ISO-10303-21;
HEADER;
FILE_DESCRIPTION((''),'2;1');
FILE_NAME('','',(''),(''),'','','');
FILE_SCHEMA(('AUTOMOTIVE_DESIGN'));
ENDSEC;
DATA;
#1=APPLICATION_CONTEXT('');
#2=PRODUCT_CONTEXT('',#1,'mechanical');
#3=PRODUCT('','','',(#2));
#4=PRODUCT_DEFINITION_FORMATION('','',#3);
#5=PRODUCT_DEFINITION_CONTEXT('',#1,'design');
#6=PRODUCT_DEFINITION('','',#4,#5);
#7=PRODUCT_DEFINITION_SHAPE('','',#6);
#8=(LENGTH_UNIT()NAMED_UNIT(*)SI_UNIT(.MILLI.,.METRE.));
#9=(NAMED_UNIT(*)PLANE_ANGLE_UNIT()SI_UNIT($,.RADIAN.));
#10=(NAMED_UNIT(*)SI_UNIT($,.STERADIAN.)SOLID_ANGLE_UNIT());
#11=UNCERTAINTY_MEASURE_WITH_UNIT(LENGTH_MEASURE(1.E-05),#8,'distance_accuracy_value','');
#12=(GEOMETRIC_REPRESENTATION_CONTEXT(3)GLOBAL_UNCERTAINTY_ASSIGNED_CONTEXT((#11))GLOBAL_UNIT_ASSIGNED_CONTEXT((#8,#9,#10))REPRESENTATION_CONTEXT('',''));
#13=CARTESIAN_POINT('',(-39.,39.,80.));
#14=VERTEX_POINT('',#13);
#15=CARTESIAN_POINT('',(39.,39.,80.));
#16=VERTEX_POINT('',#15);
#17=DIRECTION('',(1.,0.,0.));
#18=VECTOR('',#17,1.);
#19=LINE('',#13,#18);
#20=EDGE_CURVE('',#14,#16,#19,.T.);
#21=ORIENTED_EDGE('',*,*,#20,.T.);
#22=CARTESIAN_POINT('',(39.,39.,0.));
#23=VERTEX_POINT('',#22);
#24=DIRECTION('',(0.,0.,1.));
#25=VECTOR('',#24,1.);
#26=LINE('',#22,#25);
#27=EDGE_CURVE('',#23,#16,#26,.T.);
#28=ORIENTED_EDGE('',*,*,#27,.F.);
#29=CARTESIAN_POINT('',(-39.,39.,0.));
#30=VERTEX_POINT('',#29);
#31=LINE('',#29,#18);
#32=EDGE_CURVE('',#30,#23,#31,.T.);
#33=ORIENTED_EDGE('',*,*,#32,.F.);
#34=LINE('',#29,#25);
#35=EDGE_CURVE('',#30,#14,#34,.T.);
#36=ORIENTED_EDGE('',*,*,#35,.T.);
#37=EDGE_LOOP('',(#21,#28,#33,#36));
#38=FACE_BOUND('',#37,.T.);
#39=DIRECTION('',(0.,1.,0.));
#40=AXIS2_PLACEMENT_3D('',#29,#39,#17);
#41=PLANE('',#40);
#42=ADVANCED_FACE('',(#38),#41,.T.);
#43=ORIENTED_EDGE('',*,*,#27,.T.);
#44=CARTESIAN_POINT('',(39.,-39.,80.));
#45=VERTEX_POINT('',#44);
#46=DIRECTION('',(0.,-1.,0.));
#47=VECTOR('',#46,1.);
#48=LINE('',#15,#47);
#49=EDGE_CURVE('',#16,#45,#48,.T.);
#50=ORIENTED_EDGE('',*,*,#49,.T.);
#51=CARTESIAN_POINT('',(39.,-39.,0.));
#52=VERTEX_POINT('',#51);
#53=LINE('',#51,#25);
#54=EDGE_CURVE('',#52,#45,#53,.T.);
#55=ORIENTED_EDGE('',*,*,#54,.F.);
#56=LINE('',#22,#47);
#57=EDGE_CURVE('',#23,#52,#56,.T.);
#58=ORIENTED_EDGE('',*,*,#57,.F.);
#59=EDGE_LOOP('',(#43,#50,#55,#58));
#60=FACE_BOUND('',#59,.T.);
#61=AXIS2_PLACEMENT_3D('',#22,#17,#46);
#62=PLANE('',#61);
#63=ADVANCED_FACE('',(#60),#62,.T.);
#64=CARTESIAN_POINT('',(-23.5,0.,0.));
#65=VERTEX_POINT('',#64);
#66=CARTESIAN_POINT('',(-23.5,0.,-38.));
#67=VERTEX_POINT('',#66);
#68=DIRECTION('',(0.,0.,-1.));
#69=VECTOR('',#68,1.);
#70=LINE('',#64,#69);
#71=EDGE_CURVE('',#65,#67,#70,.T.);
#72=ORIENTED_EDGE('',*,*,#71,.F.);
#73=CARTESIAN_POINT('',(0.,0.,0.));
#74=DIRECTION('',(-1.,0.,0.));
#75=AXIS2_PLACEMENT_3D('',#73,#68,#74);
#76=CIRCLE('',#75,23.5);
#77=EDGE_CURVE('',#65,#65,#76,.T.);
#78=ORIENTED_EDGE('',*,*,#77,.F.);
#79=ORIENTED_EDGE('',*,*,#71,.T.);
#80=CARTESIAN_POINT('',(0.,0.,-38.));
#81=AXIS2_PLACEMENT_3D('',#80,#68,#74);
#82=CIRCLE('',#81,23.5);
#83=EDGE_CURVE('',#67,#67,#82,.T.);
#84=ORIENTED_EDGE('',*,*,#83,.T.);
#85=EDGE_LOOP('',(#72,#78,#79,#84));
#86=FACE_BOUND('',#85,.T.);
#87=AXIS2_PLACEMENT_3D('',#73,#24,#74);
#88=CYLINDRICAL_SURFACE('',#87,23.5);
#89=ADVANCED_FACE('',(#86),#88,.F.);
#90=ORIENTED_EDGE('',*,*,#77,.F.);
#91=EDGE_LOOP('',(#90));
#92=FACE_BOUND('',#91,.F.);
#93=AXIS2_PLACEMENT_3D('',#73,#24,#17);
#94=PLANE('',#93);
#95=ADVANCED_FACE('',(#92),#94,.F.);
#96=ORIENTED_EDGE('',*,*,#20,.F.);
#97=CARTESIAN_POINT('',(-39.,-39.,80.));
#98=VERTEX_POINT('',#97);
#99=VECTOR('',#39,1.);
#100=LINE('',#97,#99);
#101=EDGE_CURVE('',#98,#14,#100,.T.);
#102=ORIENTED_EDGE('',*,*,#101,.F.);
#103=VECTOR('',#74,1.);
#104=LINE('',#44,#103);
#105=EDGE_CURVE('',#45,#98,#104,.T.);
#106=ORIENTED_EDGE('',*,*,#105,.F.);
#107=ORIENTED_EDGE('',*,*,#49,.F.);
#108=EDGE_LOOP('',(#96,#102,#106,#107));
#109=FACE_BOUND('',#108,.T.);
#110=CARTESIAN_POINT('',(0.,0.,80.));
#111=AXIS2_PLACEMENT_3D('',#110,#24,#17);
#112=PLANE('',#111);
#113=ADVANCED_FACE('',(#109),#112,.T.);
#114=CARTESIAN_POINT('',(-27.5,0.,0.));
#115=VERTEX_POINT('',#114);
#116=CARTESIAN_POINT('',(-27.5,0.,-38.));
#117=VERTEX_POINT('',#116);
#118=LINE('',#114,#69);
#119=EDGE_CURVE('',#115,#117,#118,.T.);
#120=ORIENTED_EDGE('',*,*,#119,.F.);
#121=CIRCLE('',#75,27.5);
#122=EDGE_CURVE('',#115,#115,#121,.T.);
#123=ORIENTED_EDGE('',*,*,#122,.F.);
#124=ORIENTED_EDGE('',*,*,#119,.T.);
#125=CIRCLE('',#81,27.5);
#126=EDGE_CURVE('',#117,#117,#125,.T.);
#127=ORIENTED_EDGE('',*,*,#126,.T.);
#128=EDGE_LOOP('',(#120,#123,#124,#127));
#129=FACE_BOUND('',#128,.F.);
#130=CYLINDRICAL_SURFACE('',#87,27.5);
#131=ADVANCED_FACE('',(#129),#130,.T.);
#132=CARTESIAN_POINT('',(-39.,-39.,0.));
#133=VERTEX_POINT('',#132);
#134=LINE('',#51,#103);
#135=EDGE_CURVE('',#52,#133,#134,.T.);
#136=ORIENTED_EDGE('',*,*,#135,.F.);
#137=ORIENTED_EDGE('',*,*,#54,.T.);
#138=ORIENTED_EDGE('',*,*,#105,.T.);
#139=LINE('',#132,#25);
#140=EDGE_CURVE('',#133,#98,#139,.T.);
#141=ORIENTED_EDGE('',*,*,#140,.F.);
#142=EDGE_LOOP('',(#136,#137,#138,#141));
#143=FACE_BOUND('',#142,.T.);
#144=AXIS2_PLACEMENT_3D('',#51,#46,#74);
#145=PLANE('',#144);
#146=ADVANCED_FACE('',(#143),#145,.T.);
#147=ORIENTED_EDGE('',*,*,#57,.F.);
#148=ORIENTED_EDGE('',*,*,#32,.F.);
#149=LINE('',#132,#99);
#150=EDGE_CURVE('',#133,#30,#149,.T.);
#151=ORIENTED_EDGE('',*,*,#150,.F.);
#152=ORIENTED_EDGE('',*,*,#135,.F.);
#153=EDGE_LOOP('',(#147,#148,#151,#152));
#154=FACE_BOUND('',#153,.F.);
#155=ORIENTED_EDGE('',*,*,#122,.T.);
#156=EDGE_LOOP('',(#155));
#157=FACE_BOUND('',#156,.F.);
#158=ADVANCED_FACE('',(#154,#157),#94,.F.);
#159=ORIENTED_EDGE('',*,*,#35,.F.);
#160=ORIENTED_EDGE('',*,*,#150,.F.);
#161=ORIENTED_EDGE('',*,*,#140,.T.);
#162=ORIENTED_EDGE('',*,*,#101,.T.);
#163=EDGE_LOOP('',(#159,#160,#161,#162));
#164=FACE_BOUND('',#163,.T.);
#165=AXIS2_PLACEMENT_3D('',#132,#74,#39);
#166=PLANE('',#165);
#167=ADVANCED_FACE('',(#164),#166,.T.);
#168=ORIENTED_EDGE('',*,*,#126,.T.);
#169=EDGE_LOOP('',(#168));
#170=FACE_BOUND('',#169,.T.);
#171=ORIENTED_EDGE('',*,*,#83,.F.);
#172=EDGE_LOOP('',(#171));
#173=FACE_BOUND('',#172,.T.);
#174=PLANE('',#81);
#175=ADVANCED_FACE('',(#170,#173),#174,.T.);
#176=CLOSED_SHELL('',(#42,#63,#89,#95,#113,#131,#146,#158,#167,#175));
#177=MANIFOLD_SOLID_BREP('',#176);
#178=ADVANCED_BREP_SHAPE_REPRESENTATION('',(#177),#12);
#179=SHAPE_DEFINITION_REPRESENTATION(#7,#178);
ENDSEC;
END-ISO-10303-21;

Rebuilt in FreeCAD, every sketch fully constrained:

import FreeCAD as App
import Part
import Sketcher

V = App.Vector

doc = App.newDocument("Part")
body = doc.addObject("PartDesign::Body", "Body")

sketch1 = doc.addObject("Sketcher::SketchObject", "Sketch")
body.addObject(sketch1)
sketch1.AttachmentSupport = (doc.XY_Plane, [""])
sketch1.MapMode = "FlatFace"
sketch1.addGeometry([
    Part.LineSegment(V(39, 39, 0), V(-39, 39, 0)),
    Part.LineSegment(V(-39, 39, 0), V(-39, -39, 0)),
    Part.LineSegment(V(-39, -39, 0), V(39, -39, 0)),
    Part.LineSegment(V(39, -39, 0), V(39, 39, 0)),
], False)
sketch1.addConstraint([
    Sketcher.Constraint("Coincident", 0, 2, 1, 1),
    Sketcher.Constraint("Coincident", 1, 2, 2, 1),
    Sketcher.Constraint("Coincident", 2, 2, 3, 1),
    Sketcher.Constraint("Coincident", 3, 2, 0, 1),
    Sketcher.Constraint("Horizontal", 0),
    Sketcher.Constraint("Vertical", 1),
    Sketcher.Constraint("Horizontal", 2),
    Sketcher.Constraint("Vertical", 3),
    Sketcher.Constraint("Symmetric", 0, 2, 2, 2, -1, 1),
    Sketcher.Constraint("Equal", 2, 1),
    Sketcher.Constraint("DistanceX", 0, 2, 0, 1, 78.0),
])
pad1 = doc.addObject("PartDesign::Pad", "Pad")
body.addObject(pad1)
pad1.Profile = sketch1
pad1.Length = 80

sketch2 = doc.addObject("Sketcher::SketchObject", "Sketch001")
body.addObject(sketch2)
sketch2.AttachmentSupport = (doc.XY_Plane, [""])
sketch2.MapMode = "FlatFace"
sketch2.addGeometry([
    Part.Circle(V(0, 0, 0), V(0, 0, 1), 28),
    Part.Circle(V(0, 0, 0), V(0, 0, 1), 24),
], False)
sketch2.addConstraint([
    Sketcher.Constraint("Coincident", 0, 3, -1, 1),
    Sketcher.Constraint("Coincident", 1, 3, -1, 1),
    Sketcher.Constraint("Diameter", 0, 55.0),
    Sketcher.Constraint("Diameter", 1, 47.0),
])
pad2 = doc.addObject("PartDesign::Pad", "Pad001")
body.addObject(pad2)
pad2.Profile = sketch2
pad2.Length = 38
pad2.Reversed = True

doc.recompute()
